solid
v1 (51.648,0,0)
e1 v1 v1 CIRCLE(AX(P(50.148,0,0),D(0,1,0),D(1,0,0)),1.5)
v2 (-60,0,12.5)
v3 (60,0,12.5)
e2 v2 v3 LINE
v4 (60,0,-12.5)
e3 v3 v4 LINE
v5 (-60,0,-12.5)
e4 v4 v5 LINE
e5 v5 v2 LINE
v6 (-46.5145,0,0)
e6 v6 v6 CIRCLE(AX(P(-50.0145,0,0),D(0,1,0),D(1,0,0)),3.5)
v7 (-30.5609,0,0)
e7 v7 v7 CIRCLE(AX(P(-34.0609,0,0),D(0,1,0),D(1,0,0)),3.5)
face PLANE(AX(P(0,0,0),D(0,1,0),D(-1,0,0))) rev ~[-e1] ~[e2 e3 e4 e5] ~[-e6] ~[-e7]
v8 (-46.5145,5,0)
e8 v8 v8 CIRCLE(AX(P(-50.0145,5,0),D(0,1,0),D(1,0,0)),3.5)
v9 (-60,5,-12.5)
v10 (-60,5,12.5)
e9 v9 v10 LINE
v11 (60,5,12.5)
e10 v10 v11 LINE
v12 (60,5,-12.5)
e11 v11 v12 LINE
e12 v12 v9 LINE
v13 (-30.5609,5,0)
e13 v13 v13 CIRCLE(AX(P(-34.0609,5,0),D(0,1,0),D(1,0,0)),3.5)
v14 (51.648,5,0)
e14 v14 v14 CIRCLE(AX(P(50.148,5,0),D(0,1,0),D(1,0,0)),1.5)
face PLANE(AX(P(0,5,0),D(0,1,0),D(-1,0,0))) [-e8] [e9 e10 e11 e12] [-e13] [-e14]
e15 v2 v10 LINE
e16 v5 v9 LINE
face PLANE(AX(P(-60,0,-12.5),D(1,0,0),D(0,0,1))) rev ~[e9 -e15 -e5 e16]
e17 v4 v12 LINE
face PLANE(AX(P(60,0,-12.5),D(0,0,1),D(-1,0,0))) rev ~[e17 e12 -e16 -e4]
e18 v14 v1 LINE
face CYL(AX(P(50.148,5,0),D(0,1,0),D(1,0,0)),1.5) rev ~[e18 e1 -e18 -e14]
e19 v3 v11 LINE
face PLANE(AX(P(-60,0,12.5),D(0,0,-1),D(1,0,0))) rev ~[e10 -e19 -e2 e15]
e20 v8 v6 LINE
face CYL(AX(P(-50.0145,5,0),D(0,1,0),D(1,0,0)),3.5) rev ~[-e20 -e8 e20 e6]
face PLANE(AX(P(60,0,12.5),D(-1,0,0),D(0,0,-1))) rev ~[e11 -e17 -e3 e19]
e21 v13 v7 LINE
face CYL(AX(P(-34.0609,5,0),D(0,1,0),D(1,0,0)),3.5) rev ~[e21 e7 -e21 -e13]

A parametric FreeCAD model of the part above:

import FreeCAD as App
import Part
import Sketcher

V = App.Vector
Q = App.Units.Quantity


def add_polygon(sketch, points):
    """Adds a closed chain of lines whose ends are joined by coincident constraints."""
    first, n = sketch.GeometryCount, len(points)
    for a, b in zip(points, points[1:] + points[:1]):
        sketch.addGeometry(Part.LineSegment(App.Vector(*a, 0), App.Vector(*b, 0)), False)
    for i in range(n):
        sketch.addConstraint(Sketcher.Constraint("Coincident", first + i, 2, first + (i + 1) % n, 1))

doc = App.newDocument("Part")
params = doc.addObject("Spreadsheet::Sheet", "Params")
for row, (alias, value) in enumerate([
    ("sketch1_width", "120 mm"),
    ("sketch1_height", "25 mm"),
    ("pad1_length", "5 mm"),
    ("sketch2_diameter", "7 mm"),
    ("pocket1_length", "20 mm"),
    ("sketch3_diameter", "3 mm"),
    ("pocket2_length", "20 mm"),
], start=1):
    params.set(f"A{row}", alias)
    params.set(f"B{row}", "=" + value)
    params.setAlias(f"B{row}", alias)

body = doc.addObject("PartDesign::Body", "Body")

# Sketch on XZ plane
sketch1 = body.newObject("Sketcher::SketchObject", "Sketch")
sketch1.AttachmentSupport = (doc.getObject("XZ_Plane"), [""])
sketch1.MapMode = "FlatFace"
add_polygon(sketch1, [(-60, -12.5), (-60, 12.5), (60, 12.5), (60, -12.5)])  # lines 0-3
sketch1.addConstraint(Sketcher.Constraint("Vertical", 0))
sketch1.addConstraint(Sketcher.Constraint("Horizontal", 1))
sketch1.addConstraint(Sketcher.Constraint("Vertical", 2))
sketch1.addConstraint(Sketcher.Constraint("Horizontal", 3))
sketch1.addConstraint(Sketcher.Constraint("Symmetric", 0, 2, 2, 2, -1, 1))
sketch1.addConstraint(Sketcher.Constraint("DistanceX", 1, 1, 1, 2, Q("120 mm")))
sketch1.addConstraint(Sketcher.Constraint("DistanceY", 0, 1, 0, 2, Q("25 mm")))
sketch1.setExpression("Constraints[9]", "Params.sketch1_width")
sketch1.setExpression("Constraints[10]", "Params.sketch1_height")
pad1 = body.newObject("PartDesign::Pad", "Pad")
pad1.Profile = sketch1
pad1.setExpression("Length", "Params.pad1_length")
pad1.Reversed = True

# Sketch on XZ plane
sketch2 = body.newObject("Sketcher::SketchObject", "Sketch001")
sketch2.AttachmentSupport = (doc.getObject("XZ_Plane"), [""])
sketch2.MapMode = "FlatFace"
sketch2.AttachmentOffset = App.Placement(V(0, 0, -5), App.Rotation())
sketch2.addGeometry(Part.Circle(V(-50.0145, 0, 0), V(0, 0, 1), 3.5), False)
sketch2.addGeometry(Part.Circle(V(-34.0609, 0, 0), V(0, 0, 1), 3.5), False)
sketch2.addConstraint(Sketcher.Constraint("Equal", 0, 1))
sketch2.addConstraint(Sketcher.Constraint("PointOnObject", 0, 3, -1))
sketch2.addConstraint(Sketcher.Constraint("PointOnObject", 1, 3, -1))
sketch2.addConstraint(Sketcher.Constraint("Diameter", 0, Q("7 mm")))
sketch2.addConstraint(Sketcher.Constraint("DistanceX", 1, 3, -1, 1, Q("34.061 mm")))
sketch2.addConstraint(Sketcher.Constraint("DistanceX", 0, 3, -1, 1, Q("50.0145 mm")))
sketch2.setExpression("Constraints[3]", "Params.sketch2_diameter")
pocket1 = body.newObject("PartDesign::Pocket", "Pocket")
pocket1.Profile = sketch2
pocket1.setExpression("Length", "Params.pocket1_length")
pocket1.Reversed = True

# Sketch on XZ plane
sketch3 = body.newObject("Sketcher::SketchObject", "Sketch002")
sketch3.AttachmentSupport = (doc.getObject("XZ_Plane"), [""])
sketch3.MapMode = "FlatFace"
sketch3.AttachmentOffset = App.Placement(V(0, 0, -5), App.Rotation())
sketch3.addGeometry(Part.Circle(V(50.148, 0, 0), V(0, 0, 1), 1.5), False)
sketch3.addConstraint(Sketcher.Constraint("PointOnObject", 0, 3, -1))
sketch3.addConstraint(Sketcher.Constraint("Diameter", 0, Q("3 mm")))
sketch3.addConstraint(Sketcher.Constraint("DistanceX", -1, 1, 0, 3, Q("50.148 mm")))
sketch3.setExpression("Constraints[1]", "Params.sketch3_diameter")
pocket2 = body.newObject("PartDesign::Pocket", "Pocket001")
pocket2.Profile = sketch3
pocket2.setExpression("Length", "Params.pocket2_length")
pocket2.Reversed = True

doc.recompute()
